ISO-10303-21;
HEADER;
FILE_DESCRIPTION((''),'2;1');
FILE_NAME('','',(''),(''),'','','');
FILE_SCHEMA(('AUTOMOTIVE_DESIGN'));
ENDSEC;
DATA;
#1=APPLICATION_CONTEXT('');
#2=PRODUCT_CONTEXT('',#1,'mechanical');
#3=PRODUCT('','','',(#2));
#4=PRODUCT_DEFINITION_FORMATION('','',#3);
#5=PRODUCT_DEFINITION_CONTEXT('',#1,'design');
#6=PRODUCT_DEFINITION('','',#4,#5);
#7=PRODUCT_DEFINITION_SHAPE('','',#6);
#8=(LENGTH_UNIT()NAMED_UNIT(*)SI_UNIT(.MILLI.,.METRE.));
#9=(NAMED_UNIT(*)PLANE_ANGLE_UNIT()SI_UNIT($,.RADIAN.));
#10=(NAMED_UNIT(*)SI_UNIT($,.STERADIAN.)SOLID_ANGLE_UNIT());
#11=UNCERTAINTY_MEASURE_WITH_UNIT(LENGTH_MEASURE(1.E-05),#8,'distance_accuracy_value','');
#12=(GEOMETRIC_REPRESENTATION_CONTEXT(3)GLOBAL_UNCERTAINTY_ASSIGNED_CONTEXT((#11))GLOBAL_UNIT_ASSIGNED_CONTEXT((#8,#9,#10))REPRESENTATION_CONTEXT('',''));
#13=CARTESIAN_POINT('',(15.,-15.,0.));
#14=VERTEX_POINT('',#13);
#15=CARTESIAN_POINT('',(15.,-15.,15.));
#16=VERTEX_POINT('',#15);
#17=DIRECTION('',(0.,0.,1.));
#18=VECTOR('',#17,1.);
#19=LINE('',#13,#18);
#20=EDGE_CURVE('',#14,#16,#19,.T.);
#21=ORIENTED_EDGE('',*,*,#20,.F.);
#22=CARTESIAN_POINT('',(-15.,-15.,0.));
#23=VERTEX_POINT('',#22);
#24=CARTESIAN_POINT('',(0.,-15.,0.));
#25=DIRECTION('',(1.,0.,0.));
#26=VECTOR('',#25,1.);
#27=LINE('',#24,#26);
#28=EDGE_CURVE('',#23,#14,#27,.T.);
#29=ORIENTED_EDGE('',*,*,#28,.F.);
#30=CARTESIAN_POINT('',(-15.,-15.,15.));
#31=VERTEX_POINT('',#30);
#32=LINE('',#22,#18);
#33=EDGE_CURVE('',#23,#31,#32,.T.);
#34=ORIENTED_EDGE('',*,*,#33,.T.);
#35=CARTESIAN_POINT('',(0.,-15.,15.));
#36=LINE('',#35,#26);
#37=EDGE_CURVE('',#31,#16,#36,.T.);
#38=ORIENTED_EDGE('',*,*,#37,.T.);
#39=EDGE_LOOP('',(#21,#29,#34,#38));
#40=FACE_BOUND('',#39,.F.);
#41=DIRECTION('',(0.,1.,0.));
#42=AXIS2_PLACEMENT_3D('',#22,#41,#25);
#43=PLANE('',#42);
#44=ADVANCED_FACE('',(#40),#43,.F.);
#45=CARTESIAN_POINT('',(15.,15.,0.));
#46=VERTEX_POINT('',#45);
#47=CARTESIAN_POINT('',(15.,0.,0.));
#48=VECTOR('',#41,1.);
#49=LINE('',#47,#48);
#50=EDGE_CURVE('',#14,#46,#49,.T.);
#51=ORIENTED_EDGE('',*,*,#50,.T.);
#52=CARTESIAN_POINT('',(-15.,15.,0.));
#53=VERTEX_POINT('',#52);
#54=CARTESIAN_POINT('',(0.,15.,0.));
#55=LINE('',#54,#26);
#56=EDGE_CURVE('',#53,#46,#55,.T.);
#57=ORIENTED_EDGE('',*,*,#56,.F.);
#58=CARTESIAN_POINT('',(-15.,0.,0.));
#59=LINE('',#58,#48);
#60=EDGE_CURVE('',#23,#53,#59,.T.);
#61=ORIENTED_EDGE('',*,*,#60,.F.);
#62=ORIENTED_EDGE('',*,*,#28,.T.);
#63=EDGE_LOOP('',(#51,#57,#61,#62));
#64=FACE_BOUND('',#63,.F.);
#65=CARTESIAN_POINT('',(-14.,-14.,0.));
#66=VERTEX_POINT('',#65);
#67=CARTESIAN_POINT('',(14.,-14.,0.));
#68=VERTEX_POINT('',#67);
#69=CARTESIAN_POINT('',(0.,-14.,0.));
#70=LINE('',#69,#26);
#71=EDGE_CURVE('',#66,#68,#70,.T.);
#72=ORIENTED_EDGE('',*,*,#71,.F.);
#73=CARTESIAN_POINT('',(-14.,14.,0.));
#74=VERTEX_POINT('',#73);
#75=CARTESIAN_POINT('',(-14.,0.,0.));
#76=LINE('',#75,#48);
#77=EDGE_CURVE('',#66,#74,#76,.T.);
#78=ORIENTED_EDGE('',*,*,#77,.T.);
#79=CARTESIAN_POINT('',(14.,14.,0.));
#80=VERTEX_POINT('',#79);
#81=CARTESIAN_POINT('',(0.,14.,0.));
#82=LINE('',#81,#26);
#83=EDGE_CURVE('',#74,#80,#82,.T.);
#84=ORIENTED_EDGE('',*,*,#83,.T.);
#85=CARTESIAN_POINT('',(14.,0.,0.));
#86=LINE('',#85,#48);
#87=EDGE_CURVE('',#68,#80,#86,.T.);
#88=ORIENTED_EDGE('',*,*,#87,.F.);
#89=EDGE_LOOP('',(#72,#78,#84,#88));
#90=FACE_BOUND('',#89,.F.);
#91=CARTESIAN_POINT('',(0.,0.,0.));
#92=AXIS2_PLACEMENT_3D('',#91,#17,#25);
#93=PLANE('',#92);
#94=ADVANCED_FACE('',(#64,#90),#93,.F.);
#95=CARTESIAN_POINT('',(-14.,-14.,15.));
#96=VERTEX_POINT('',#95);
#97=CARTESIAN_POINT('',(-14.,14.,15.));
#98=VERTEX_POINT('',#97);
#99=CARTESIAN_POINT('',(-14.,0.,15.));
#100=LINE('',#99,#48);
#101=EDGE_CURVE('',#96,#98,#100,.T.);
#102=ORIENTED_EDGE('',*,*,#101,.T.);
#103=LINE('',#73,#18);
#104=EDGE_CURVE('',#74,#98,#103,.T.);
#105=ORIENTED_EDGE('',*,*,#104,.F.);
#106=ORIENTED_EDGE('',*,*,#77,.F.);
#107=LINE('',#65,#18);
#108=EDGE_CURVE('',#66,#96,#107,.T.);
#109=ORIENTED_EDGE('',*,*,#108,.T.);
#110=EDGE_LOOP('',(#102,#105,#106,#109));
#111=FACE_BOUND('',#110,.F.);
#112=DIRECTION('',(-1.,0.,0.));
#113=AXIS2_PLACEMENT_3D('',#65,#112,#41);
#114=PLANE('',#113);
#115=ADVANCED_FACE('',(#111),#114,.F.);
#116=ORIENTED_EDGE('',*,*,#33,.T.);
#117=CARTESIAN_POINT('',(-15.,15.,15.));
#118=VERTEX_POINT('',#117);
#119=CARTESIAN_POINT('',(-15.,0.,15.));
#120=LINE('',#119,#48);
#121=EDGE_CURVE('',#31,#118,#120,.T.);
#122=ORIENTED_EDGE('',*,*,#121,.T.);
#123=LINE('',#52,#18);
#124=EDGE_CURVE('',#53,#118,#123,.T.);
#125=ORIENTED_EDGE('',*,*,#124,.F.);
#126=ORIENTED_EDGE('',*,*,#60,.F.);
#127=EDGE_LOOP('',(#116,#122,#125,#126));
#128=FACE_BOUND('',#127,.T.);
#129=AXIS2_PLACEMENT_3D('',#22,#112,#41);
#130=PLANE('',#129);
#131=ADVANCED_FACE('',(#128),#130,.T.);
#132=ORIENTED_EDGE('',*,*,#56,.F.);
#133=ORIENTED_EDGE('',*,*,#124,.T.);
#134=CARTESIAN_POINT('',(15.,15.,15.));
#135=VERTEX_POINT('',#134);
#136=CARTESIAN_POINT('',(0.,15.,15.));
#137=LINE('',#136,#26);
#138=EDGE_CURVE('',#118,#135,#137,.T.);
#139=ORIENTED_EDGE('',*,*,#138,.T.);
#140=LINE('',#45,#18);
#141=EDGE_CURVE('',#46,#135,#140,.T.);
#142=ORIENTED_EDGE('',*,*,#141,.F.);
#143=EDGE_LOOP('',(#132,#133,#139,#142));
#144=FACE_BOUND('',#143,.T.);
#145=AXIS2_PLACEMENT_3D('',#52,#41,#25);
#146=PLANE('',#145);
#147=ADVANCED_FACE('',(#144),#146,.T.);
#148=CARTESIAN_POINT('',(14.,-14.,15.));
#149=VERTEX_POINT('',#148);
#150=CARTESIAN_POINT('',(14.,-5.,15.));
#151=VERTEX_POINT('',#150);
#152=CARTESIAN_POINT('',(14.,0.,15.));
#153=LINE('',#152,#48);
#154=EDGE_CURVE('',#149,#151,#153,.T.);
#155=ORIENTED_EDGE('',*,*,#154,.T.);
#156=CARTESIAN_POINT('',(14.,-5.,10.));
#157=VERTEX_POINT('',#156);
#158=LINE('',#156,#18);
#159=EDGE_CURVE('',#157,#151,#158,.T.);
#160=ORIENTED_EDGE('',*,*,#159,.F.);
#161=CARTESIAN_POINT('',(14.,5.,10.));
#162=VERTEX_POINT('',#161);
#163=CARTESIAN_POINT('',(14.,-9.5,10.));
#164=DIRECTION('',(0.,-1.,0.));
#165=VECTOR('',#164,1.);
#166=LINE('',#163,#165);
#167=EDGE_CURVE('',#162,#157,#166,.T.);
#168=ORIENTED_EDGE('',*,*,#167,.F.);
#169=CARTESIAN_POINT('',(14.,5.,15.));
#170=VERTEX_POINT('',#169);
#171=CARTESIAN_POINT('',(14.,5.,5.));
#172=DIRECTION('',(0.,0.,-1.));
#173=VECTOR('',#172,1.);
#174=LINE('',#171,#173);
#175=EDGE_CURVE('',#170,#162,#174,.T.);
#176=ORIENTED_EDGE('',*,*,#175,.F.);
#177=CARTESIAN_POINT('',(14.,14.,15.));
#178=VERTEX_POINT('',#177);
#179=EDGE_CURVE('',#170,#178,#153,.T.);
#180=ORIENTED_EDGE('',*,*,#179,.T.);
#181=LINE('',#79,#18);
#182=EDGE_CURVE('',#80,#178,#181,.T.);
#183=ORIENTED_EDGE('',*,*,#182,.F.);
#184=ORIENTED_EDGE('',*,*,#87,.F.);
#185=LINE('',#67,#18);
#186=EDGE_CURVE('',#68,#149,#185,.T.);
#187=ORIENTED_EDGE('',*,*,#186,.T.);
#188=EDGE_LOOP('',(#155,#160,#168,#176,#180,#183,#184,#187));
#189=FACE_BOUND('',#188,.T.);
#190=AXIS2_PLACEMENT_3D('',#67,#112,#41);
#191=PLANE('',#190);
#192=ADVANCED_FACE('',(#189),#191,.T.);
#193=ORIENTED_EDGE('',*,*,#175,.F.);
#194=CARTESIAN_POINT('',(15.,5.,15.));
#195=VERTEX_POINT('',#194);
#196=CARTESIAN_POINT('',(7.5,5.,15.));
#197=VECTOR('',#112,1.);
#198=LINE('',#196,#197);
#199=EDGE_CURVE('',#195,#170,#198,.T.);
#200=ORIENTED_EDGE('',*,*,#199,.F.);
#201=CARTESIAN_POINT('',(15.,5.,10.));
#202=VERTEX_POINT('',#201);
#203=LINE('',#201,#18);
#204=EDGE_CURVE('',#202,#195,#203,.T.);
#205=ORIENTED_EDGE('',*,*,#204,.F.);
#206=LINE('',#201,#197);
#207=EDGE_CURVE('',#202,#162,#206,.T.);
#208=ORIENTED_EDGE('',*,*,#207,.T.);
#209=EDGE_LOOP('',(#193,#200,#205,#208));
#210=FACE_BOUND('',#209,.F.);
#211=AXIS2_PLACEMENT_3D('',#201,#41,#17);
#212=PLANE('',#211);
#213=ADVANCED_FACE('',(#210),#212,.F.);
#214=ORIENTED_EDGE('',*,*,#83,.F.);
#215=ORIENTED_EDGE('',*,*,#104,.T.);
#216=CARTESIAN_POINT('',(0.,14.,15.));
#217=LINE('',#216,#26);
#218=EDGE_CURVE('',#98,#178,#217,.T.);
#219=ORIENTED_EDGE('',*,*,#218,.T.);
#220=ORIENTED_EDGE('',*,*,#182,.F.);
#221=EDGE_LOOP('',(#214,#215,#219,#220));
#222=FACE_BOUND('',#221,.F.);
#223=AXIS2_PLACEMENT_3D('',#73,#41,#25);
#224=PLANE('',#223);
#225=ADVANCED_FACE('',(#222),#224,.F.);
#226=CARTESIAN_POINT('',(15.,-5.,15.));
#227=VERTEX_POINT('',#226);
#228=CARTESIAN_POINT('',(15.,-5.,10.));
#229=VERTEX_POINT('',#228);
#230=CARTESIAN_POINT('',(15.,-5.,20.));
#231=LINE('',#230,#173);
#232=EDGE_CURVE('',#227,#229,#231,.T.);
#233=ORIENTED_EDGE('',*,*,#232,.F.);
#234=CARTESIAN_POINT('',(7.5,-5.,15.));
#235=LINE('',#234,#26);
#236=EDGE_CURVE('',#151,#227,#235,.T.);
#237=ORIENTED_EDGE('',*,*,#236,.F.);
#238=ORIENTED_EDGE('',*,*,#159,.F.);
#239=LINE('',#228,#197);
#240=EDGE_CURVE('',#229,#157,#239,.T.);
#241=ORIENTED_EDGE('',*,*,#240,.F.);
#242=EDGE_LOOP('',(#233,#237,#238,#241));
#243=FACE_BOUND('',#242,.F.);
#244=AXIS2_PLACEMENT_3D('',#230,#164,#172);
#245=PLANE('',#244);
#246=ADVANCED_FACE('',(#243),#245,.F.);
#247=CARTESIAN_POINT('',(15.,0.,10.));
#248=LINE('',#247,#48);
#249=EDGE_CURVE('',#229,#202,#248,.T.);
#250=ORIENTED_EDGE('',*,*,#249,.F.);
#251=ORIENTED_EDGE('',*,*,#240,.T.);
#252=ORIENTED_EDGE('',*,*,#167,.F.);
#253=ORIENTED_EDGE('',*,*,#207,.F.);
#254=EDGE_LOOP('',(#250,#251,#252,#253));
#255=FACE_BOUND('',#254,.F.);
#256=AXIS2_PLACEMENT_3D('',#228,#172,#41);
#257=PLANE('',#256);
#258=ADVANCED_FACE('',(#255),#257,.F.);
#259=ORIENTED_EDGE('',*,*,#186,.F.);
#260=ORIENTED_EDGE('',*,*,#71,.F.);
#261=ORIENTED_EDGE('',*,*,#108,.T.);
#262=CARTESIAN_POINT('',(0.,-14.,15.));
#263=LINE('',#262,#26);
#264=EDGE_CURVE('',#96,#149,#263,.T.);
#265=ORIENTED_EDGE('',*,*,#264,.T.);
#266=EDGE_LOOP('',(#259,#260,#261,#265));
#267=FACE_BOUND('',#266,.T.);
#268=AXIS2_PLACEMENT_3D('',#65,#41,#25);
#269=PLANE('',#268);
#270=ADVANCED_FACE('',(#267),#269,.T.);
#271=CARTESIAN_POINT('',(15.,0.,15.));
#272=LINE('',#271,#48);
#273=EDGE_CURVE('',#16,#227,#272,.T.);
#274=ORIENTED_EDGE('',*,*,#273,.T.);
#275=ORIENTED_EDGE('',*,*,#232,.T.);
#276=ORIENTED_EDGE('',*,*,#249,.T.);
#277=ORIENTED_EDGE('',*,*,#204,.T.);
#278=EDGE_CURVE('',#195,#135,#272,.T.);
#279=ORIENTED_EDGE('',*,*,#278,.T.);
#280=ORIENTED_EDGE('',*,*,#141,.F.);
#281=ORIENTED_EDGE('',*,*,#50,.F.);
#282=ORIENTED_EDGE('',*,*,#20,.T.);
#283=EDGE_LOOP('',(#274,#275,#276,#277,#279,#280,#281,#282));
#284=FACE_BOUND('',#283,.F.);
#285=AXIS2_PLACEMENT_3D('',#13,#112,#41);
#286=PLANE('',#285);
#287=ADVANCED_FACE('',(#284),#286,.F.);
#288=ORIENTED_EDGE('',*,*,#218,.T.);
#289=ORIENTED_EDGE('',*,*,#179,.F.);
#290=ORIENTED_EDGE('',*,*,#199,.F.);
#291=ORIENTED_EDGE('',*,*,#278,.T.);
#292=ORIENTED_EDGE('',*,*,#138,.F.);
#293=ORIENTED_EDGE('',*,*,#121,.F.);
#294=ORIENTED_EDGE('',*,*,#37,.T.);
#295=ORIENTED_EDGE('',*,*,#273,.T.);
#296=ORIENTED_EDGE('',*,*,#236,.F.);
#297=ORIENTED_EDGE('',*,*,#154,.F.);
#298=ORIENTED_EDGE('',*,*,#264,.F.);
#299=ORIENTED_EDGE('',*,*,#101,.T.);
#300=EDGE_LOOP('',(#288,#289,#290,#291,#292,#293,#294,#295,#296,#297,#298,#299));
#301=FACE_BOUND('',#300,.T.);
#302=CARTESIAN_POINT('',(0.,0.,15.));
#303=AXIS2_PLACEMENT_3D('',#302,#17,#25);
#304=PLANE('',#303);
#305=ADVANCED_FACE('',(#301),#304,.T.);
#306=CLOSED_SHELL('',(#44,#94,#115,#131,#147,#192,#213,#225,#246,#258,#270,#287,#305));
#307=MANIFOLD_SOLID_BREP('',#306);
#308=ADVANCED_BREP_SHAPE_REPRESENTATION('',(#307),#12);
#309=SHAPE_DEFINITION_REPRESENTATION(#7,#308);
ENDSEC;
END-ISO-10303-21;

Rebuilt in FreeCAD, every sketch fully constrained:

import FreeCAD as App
import Part
import Sketcher

V = App.Vector


def add_polygon(sketch, points):
    """Adds a closed chain of lines whose ends are joined by coincident constraints."""
    first, n = sketch.GeometryCount, len(points)
    for a, b in zip(points, points[1:] + points[:1]):
        sketch.addGeometry(Part.LineSegment(App.Vector(*a, 0), App.Vector(*b, 0)), False)
    for i in range(n):
        sketch.addConstraint(Sketcher.Constraint("Coincident", first + i, 2, first + (i + 1) % n, 1))

doc = App.newDocument("Part")
body = doc.addObject("PartDesign::Body", "Body")

# Sketch on XY plane
sketch1 = doc.addObject("Sketcher::SketchObject", "Sketch")
body.addObject(sketch1)
sketch1.AttachmentSupport = (doc.XY_Plane, [""])
sketch1.MapMode = "FlatFace"
add_polygon(sketch1, [(-15, 15), (-15, -15), (15, -15), (15, 15)])  # lines 0-3
add_polygon(sketch1, [(14, -14), (-14, -14), (-14, 14), (14, 14)])  # lines 4-7
sketch1.addConstraint(Sketcher.Constraint("Vertical", 0))
sketch1.addConstraint(Sketcher.Constraint("Horizontal", 1))
sketch1.addConstraint(Sketcher.Constraint("Vertical", 2))
sketch1.addConstraint(Sketcher.Constraint("Horizontal", 3))
sketch1.addConstraint(Sketcher.Constraint("Horizontal", 4))
sketch1.addConstraint(Sketcher.Constraint("Vertical", 5))
sketch1.addConstraint(Sketcher.Constraint("Horizontal", 6))
sketch1.addConstraint(Sketcher.Constraint("Vertical", 7))
sketch1.addConstraint(Sketcher.Constraint("Symmetric", 0, 2, 2, 2, -1, 1))
sketch1.addConstraint(Sketcher.Constraint("Symmetric", 4, 2, 6, 2, -1, 1))
sketch1.addConstraint(Sketcher.Constraint("Equal", 3, 0))
sketch1.addConstraint(Sketcher.Constraint("Equal", 6, 5))
sketch1.addConstraint(Sketcher.Constraint("DistanceX", 1, 1, 1, 2, 30.0))
sketch1.addConstraint(Sketcher.Constraint("DistanceX", 4, 2, 4, 1, 28.0))
pad1 = doc.addObject("PartDesign::Pad", "Pad")
body.addObject(pad1)
pad1.Profile = sketch1
pad1.Length = 15

# Sketch on YZ plane
sketch2 = doc.addObject("Sketcher::SketchObject", "Sketch001")
body.addObject(sketch2)
sketch2.AttachmentSupport = (doc.YZ_Plane, [""])
sketch2.MapMode = "FlatFace"
sketch2.AttachmentOffset = App.Placement(V(0, 0, 15), App.Rotation())
add_polygon(sketch2, [(-5, 20), (-5, 10), (5, 10), (5, 20)])  # lines 0-3
sketch2.addConstraint(Sketcher.Constraint("Vertical", 0))
sketch2.addConstraint(Sketcher.Constraint("Horizontal", 1))
sketch2.addConstraint(Sketcher.Constraint("Vertical", 2))
sketch2.addConstraint(Sketcher.Constraint("Horizontal", 3))
sketch2.addConstraint(Sketcher.Constraint("Equal", 3, 0))
sketch2.addConstraint(Sketcher.Constraint("DistanceX", 1, 1, 1, 2, 10.0))
sketch2.addConstraint(Sketcher.Constraint("DistanceX", 0, 2, -1, 1, 5.0))
sketch2.addConstraint(Sketcher.Constraint("DistanceY", -1, 1, 0, 2, 10.0))
pocket1 = doc.addObject("PartDesign::Pocket", "Pocket")
body.addObject(pocket1)
pocket1.Profile = sketch2
pocket1.Length = 25

doc.recompute()
